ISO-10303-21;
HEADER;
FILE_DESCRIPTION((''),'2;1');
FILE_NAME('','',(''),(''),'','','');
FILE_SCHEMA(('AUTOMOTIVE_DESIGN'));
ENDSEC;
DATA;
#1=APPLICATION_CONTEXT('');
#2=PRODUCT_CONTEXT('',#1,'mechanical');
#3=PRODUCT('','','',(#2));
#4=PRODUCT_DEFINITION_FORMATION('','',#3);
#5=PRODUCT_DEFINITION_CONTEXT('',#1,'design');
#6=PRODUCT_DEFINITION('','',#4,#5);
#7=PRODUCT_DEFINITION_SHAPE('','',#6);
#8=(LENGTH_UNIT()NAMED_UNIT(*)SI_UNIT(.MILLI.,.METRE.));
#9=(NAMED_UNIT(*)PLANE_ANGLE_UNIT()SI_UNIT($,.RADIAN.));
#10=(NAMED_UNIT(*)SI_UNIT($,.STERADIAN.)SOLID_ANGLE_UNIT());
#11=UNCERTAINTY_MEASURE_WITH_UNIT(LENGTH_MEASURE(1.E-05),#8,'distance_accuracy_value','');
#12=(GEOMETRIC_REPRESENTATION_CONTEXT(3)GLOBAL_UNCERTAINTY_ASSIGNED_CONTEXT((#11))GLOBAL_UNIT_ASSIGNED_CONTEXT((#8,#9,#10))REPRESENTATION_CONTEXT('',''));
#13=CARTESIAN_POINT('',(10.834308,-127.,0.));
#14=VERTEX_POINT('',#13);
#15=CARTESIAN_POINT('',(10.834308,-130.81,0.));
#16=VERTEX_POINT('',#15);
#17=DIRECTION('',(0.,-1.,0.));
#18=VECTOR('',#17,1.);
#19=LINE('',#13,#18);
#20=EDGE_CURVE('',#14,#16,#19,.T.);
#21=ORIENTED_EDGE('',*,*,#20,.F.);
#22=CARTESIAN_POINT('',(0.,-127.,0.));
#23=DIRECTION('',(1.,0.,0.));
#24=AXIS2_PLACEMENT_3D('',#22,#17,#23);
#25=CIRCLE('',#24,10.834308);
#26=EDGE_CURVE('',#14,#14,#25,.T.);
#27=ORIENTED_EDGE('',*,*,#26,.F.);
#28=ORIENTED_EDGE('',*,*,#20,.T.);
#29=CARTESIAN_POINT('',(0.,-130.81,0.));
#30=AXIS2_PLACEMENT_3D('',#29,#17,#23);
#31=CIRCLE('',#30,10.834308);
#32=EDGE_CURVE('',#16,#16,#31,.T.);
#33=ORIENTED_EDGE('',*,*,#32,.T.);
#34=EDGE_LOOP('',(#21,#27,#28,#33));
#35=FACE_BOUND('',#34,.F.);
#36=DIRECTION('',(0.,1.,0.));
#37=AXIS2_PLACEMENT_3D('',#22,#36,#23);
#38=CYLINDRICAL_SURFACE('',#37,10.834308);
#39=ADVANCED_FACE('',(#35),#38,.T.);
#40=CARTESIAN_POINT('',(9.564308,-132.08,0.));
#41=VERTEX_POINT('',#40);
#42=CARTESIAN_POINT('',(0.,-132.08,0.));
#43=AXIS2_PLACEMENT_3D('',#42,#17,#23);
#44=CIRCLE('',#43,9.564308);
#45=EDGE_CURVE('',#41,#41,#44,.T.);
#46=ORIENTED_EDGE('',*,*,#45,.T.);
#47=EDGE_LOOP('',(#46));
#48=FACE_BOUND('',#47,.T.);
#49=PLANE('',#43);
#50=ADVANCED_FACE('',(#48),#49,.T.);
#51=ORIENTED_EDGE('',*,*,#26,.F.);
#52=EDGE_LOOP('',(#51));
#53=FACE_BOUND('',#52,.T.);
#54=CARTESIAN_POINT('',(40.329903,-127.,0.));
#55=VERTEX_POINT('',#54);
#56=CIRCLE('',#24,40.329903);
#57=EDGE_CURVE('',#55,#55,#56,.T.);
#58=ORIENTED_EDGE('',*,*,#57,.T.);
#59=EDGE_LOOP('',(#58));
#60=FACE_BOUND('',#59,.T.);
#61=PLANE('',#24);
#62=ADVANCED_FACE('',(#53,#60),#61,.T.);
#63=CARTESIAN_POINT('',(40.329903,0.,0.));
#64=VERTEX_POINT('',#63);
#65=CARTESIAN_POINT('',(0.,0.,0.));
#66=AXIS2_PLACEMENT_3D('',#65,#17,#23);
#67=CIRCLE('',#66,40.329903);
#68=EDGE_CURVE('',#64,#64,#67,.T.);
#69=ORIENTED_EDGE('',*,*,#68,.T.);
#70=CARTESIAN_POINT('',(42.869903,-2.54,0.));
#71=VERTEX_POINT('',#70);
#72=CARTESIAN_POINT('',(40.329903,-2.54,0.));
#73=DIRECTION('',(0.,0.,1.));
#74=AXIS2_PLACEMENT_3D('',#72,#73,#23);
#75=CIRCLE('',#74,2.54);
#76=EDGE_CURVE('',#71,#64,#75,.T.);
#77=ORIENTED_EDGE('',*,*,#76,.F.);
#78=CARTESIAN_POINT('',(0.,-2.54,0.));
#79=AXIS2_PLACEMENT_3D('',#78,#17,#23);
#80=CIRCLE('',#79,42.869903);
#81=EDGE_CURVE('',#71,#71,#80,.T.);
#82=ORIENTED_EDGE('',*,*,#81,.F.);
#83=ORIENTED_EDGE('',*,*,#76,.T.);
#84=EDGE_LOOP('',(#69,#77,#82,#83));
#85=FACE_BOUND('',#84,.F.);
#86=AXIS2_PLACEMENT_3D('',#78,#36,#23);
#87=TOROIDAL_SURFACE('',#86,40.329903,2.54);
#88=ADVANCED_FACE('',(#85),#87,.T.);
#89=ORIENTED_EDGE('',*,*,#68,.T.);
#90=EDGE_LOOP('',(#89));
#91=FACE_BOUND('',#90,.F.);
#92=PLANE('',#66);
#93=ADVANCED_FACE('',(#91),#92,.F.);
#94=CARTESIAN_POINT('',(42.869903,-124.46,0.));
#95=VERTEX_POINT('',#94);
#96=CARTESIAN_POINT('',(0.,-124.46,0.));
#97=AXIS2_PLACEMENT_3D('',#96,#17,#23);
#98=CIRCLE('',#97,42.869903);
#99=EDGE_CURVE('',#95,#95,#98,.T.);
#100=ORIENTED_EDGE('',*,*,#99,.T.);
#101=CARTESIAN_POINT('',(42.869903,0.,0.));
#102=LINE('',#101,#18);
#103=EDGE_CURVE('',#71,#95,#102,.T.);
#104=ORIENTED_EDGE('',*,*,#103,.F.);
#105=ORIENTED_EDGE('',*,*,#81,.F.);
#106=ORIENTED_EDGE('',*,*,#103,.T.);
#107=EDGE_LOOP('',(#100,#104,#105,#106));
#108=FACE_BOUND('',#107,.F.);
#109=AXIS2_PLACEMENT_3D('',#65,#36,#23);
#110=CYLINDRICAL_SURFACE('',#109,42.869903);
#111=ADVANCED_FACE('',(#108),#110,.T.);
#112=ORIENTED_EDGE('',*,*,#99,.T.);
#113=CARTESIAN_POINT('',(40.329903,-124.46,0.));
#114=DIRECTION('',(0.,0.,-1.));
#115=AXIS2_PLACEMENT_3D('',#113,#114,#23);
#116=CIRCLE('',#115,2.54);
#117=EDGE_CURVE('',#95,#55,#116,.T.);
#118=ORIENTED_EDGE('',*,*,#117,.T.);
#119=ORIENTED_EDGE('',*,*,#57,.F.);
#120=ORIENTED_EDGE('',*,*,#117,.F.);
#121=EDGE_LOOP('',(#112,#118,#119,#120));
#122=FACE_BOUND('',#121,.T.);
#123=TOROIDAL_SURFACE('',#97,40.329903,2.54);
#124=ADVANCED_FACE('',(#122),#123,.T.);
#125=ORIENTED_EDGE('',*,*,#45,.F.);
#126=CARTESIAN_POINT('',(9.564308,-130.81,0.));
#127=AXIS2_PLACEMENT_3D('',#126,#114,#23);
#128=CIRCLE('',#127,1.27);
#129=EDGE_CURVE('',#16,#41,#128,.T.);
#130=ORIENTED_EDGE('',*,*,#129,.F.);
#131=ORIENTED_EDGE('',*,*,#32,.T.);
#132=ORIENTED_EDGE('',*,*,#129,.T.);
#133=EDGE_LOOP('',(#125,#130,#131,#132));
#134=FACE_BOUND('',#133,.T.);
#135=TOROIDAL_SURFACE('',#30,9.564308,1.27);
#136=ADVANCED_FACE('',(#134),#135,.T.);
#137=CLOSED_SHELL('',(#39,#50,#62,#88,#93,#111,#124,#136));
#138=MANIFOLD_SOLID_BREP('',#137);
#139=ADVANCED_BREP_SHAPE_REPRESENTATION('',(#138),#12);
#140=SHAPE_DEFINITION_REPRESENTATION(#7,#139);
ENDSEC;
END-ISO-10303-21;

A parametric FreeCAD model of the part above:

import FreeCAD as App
import Part
import Sketcher
Q = App.Units.Quantity


def edges_at(feature, points):
    """Names of the edges that pass closest to the given points."""
    edges = feature.Shape.Edges
    near = lambda p: min(range(len(edges)), key=lambda i: edges[i].distToShape(Part.Vertex(*p))[0])
    return sorted({f"Edge{near(p) + 1}" for p in points})

doc = App.newDocument("Part")
body = doc.addObject("PartDesign::Body", "Body")

sketch1 = body.newObject("Sketcher::SketchObject", "Sketch")
sketch1.AttachmentSupport = (doc.getObject("XZ_Plane"), [""])
sketch1.MapMode = "FlatFace"
sketch1.addGeometry(Part.Circle(App.Vector(0, 0, 0), App.Vector(0, 0, 1), 43), False)
sketch1.addConstraint([
    Sketcher.Constraint("Coincident", 0, 3, -1, 1),
    Sketcher.Constraint("Diameter", 0, Q("85.739806 mm")),
])
pad1 = body.newObject("PartDesign::Pad", "Pad")
pad1.Profile = sketch1
pad1.Length = Q("5 in")
doc.recompute()

fillet = body.newObject("PartDesign::Fillet", "Fillet")
fillet.Base = (pad1, ["Edge1"])
fillet.UseAllEdges = True
fillet.Radius = Q("0.1 in")

sketch2 = body.newObject("Sketcher::SketchObject", "Sketch001")
sketch2.AttachmentSupport = (doc.getObject("XZ_Plane"), [""])
sketch2.MapMode = "FlatFace"
sketch2.AttachmentOffset = App.Placement(App.Vector(0, 0, 5 * 25.4), App.Rotation())
sketch2.addGeometry(Part.Circle(App.Vector(0, 0, 0), App.Vector(0, 0, 1), 11), False)
sketch2.addConstraint([
    Sketcher.Constraint("Coincident", 0, 3, -1, 1),
    Sketcher.Constraint("Diameter", 0, Q("21.668616 mm")),
])
pad2 = body.newObject("PartDesign::Pad", "Pad001")
pad2.Profile = sketch2
pad2.Length = Q("0.2 in")
doc.recompute()

fillet2 = body.newObject("PartDesign::Fillet", "Fillet001")
fillet2.Base = (pad2, edges_at(pad2, [(-10.834, -132.08, 0)]))
fillet2.Radius = Q("0.05 in")

doc.recompute()
